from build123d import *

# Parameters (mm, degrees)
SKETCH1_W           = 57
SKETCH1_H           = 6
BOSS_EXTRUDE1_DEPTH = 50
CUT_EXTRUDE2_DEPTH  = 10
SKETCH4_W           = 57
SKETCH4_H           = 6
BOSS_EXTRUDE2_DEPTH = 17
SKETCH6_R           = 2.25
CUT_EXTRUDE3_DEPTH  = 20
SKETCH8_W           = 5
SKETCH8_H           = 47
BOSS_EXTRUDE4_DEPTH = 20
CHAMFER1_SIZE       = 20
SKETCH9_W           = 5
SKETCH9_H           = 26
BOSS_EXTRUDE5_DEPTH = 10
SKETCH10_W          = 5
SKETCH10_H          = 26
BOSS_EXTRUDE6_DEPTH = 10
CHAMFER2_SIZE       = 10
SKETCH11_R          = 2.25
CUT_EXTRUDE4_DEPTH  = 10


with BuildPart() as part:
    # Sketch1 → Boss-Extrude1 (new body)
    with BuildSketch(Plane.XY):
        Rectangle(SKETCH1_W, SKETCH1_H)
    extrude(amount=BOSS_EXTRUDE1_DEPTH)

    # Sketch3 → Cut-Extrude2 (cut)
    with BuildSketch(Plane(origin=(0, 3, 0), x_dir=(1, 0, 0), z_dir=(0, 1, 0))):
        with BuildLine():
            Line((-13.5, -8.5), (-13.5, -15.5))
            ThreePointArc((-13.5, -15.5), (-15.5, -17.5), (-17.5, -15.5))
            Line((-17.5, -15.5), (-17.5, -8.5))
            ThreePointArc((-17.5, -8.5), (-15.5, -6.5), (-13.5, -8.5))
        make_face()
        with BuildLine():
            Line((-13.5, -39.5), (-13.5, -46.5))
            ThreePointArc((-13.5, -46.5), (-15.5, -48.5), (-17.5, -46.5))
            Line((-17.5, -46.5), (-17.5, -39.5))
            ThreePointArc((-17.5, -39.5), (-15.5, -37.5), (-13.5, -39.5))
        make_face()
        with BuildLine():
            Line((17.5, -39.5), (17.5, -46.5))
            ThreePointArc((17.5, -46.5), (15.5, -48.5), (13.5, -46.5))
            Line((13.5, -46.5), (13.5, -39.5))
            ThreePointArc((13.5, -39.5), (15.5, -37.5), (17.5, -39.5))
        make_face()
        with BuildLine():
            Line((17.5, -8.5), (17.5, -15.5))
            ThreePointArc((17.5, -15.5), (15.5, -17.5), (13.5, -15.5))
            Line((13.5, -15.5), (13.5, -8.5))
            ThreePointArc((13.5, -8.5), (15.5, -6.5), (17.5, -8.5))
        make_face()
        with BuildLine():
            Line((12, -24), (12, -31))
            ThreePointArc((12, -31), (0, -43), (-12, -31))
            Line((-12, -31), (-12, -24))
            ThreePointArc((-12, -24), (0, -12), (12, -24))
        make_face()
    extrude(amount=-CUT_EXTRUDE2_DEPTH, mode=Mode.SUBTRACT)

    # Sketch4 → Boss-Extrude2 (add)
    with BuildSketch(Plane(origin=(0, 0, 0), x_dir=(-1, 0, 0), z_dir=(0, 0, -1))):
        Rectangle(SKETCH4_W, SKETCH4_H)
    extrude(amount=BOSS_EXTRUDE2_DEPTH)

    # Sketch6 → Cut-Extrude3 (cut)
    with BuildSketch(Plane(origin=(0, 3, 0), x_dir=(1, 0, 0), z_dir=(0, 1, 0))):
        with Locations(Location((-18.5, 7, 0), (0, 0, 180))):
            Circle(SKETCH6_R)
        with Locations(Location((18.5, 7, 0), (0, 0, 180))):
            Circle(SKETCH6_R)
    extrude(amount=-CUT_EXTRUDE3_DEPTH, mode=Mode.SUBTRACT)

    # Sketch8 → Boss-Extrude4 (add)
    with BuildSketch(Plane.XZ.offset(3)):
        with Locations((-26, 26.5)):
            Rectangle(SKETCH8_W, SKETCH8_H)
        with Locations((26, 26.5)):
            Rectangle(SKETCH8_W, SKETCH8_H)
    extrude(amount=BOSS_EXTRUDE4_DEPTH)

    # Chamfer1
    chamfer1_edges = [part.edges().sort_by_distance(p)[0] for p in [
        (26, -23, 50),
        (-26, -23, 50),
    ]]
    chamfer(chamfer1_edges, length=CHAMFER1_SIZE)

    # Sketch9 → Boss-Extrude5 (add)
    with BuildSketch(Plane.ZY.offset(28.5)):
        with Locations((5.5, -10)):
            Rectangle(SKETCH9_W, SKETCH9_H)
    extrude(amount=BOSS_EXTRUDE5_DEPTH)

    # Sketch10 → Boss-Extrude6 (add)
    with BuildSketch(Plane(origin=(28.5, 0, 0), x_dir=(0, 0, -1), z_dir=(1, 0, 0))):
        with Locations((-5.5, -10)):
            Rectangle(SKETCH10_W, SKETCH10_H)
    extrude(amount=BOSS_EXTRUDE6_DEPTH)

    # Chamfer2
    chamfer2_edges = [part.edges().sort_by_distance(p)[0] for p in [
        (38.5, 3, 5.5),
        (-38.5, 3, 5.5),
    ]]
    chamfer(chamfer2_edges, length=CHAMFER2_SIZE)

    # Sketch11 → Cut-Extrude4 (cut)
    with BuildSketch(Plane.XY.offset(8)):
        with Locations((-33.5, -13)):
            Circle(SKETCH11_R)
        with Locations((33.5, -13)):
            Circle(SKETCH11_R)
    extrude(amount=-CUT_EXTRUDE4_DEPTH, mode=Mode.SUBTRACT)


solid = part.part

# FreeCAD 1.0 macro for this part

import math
import FreeCAD as App
import Part
import Sketcher
from FreeCAD import Vector
Q = App.Units.Quantity


def edges_at(feature, points):
    """Names of the edges that pass closest to the given points."""
    edges = feature.Shape.Edges
    near = lambda p: min(range(len(edges)), key=lambda i: edges[i].distToShape(Part.Vertex(*p))[0])
    return sorted({f"Edge{near(p) + 1}" for p in points})

doc = App.newDocument("Part")
body = doc.addObject("PartDesign::Body", "Body")

# Sketch on XY plane
sketch1 = body.newObject("Sketcher::SketchObject", "Sketch")
sketch1.AttachmentSupport = (doc.getObject("XY_Plane"), [""])
sketch1.MapMode = "FlatFace"
sketch1.addGeometry([
    Part.LineSegment(Vector(-28.5, 3, 0), Vector(-28.5, -3, 0)),
    Part.LineSegment(Vector(-28.5, -3, 0), Vector(28.5, -3, 0)),
    Part.LineSegment(Vector(28.5, -3, 0), Vector(28.5, 3, 0)),
    Part.LineSegment(Vector(28.5, 3, 0), Vector(-28.5, 3, 0)),
], False)
sketch1.addConstraint([
    Sketcher.Constraint("Coincident", 0, 2, 1, 1),
    Sketcher.Constraint("Coincident", 1, 2, 2, 1),
    Sketcher.Constraint("Coincident", 2, 2, 3, 1),
    Sketcher.Constraint("Coincident", 3, 2, 0, 1),
    Sketcher.Constraint("Vertical", 0),
    Sketcher.Constraint("Horizontal", 1),
    Sketcher.Constraint("Vertical", 2),
    Sketcher.Constraint("Horizontal", 3),
    Sketcher.Constraint("Symmetric", 0, 2, 2, 2, -1, 1),
    Sketcher.Constraint("DistanceX", 1, 1, 1, 2, Q("57 mm")),
    Sketcher.Constraint("DistanceY", 0, 2, 0, 1, Q("6 mm")),
])
pad1 = body.newObject("PartDesign::Pad", "Pad")
pad1.Profile = sketch1
pad1.Length = 50

# Sketch on XZ plane
sketch2 = body.newObject("Sketcher::SketchObject", "Sketch001")
sketch2.AttachmentSupport = (doc.getObject("XZ_Plane"), [""])
sketch2.MapMode = "FlatFace"
sketch2.AttachmentOffset = App.Placement(Vector(0, 0, -3), App.Rotation())
sketch2.addGeometry([
    Part.LineSegment(Vector(-13.5, 15.5, 0), Vector(-13.5, 8.5, 0)),  # 0
    Part.ArcOfCircle(Part.Circle(Vector(-15.5, 8.5, 0), Vector(0, 0, 1), 2), math.radians(180), math.radians(360)),  # 1
    Part.LineSegment(Vector(-17.5, 8.5, 0), Vector(-17.5, 15.5, 0)),  # 2
    Part.ArcOfCircle(Part.Circle(Vector(-15.5, 15.5, 0), Vector(0, 0, 1), 2), math.radians(0), math.radians(180)),  # 3
    Part.LineSegment(Vector(-13.5, 46.5, 0), Vector(-13.5, 39.5, 0)),  # 4
    Part.ArcOfCircle(Part.Circle(Vector(-15.5, 39.5, 0), Vector(0, 0, 1), 2), math.radians(180), math.radians(360)),  # 5
    Part.LineSegment(Vector(-17.5, 39.5, 0), Vector(-17.5, 46.5, 0)),  # 6
    Part.ArcOfCircle(Part.Circle(Vector(-15.5, 46.5, 0), Vector(0, 0, 1), 2), math.radians(0), math.radians(180)),  # 7
    Part.LineSegment(Vector(17.5, 46.5, 0), Vector(17.5, 39.5, 0)),  # 8
    Part.ArcOfCircle(Part.Circle(Vector(15.5, 39.5, 0), Vector(0, 0, 1), 2), math.radians(180), math.radians(360)),  # 9
    Part.LineSegment(Vector(13.5, 39.5, 0), Vector(13.5, 46.5, 0)),  # 10
    Part.ArcOfCircle(Part.Circle(Vector(15.5, 46.5, 0), Vector(0, 0, 1), 2), math.radians(0), math.radians(180)),  # 11
    Part.LineSegment(Vector(17.5, 15.5, 0), Vector(17.5, 8.5, 0)),  # 12
    Part.ArcOfCircle(Part.Circle(Vector(15.5, 8.5, 0), Vector(0, 0, 1), 2), math.radians(180), math.radians(360)),  # 13
    Part.LineSegment(Vector(13.5, 8.5, 0), Vector(13.5, 15.5, 0)),  # 14
    Part.ArcOfCircle(Part.Circle(Vector(15.5, 15.5, 0), Vector(0, 0, 1), 2), math.radians(0), math.radians(180)),  # 15
    Part.LineSegment(Vector(12, 31, 0), Vector(12, 24, 0)),  # 16
    Part.ArcOfCircle(Part.Circle(Vector(0, 24, 0), Vector(0, 0, 1), 12), math.radians(180), math.radians(360)),  # 17
    Part.LineSegment(Vector(-12, 24, 0), Vector(-12, 31, 0)),  # 18
    Part.ArcOfCircle(Part.Circle(Vector(0, 31, 0), Vector(0, 0, 1), 12), math.radians(0), math.radians(180)),  # 19
], False)
sketch2.addConstraint([
    Sketcher.Constraint("Tangent", 0, 2, 1, 2),
    Sketcher.Constraint("Tangent", 1, 1, 2, 1),
    Sketcher.Constraint("Tangent", 2, 2, 3, 2),
    Sketcher.Constraint("Tangent", 3, 1, 0, 1),
    Sketcher.Constraint("Tangent", 4, 2, 5, 2),
    Sketcher.Constraint("Tangent", 5, 1, 6, 1),
    Sketcher.Constraint("Tangent", 6, 2, 7, 2),
    Sketcher.Constraint("Tangent", 7, 1, 4, 1),
    Sketcher.Constraint("Tangent", 8, 2, 9, 2),
    Sketcher.Constraint("Tangent", 9, 1, 10, 1),
    Sketcher.Constraint("Tangent", 10, 2, 11, 2),
    Sketcher.Constraint("Tangent", 11, 1, 8, 1),
    Sketcher.Constraint("Tangent", 12, 2, 13, 2),
    Sketcher.Constraint("Tangent", 13, 1, 14, 1),
    Sketcher.Constraint("Tangent", 14, 2, 15, 2),
    Sketcher.Constraint("Tangent", 15, 1, 12, 1),
    Sketcher.Constraint("Tangent", 16, 2, 17, 2),
    Sketcher.Constraint("Tangent", 17, 1, 18, 1),
    Sketcher.Constraint("Tangent", 18, 2, 19, 2),
    Sketcher.Constraint("Tangent", 19, 1, 16, 1),
    Sketcher.Constraint("Vertical", 0),
    Sketcher.Constraint("Vertical", 2),
    Sketcher.Constraint("Vertical", 4),
    Sketcher.Constraint("Vertical", 6),
    Sketcher.Constraint("Vertical", 8),
    Sketcher.Constraint("Vertical", 10),
    Sketcher.Constraint("Vertical", 12),
    Sketcher.Constraint("Vertical", 14),
    Sketcher.Constraint("Vertical", 16),
    Sketcher.Constraint("Vertical", 18),
    Sketcher.Constraint("Equal", 3, 5),
    Sketcher.Constraint("Equal", 7, 9),
    Sketcher.Constraint("Equal", 11, 13),
    Sketcher.Constraint("Symmetric", 5, 3, 9, 3, -2),
    Sketcher.Constraint("Symmetric", 1, 3, 13, 3, -2),
    Sketcher.Constraint("PointOnObject", 17, 3, -2),
    Sketcher.Constraint("Horizontal", 7, 3, 11, 3),
    Sketcher.Constraint("Horizontal", 3, 3, 15, 3),
    Sketcher.Constraint("Vertical", 3, 3, 5, 3),
    Sketcher.Constraint("Equal", 2, 4),
    Sketcher.Constraint("Equal", 14, 16),
    Sketcher.Constraint("Radius", 1, Q("2 mm")),
    Sketcher.Constraint("Radius", 17, Q("12 mm")),
    Sketcher.Constraint("DistanceY", 0, 2, 0, 1, Q("7 mm")),
    Sketcher.Constraint("DistanceY", -1, 1, 17, 3, Q("24 mm")),
    Sketcher.Constraint("DistanceY", 3, 3, 5, 3, Q("24 mm")),
    Sketcher.Constraint("DistanceX", 5, 3, 9, 3, Q("31 mm")),
    Sketcher.Constraint("DistanceY", -1, 1, 1, 3, Q("8.5 mm")),
])
pocket1 = body.newObject("PartDesign::Pocket", "Pocket")
pocket1.Profile = sketch2
pocket1.Length = 10
pocket1.Reversed = True

# Sketch on XY plane
sketch3 = body.newObject("Sketcher::SketchObject", "Sketch002")
sketch3.AttachmentSupport = (doc.getObject("XY_Plane"), [""])
sketch3.MapMode = "FlatFace"
sketch3.addGeometry([
    Part.LineSegment(Vector(28.5, 3, 0), Vector(28.5, -3, 0)),
    Part.LineSegment(Vector(28.5, -3, 0), Vector(-28.5, -3, 0)),
    Part.LineSegment(Vector(-28.5, -3, 0), Vector(-28.5, 3, 0)),
    Part.LineSegment(Vector(-28.5, 3, 0), Vector(28.5, 3, 0)),
], False)
sketch3.addConstraint([
    Sketcher.Constraint("Coincident", 0, 2, 1, 1),
    Sketcher.Constraint("Coincident", 1, 2, 2, 1),
    Sketcher.Constraint("Coincident", 2, 2, 3, 1),
    Sketcher.Constraint("Coincident", 3, 2, 0, 1),
    Sketcher.Constraint("Vertical", 0),
    Sketcher.Constraint("Horizontal", 1),
    Sketcher.Constraint("Vertical", 2),
    Sketcher.Constraint("Horizontal", 3),
    Sketcher.Constraint("Symmetric", 0, 2, 2, 2, -1, 1),
    Sketcher.Constraint("DistanceX", 1, 2, 1, 1, Q("57 mm")),
    Sketcher.Constraint("DistanceY", 0, 2, 0, 1, Q("6 mm")),
])
pad2 = body.newObject("PartDesign::Pad", "Pad001")
pad2.Profile = sketch3
pad2.Length = 17
pad2.Reversed = True

# Sketch on XZ plane
sketch4 = body.newObject("Sketcher::SketchObject", "Sketch003")
sketch4.AttachmentSupport = (doc.getObject("XZ_Plane"), [""])
sketch4.MapMode = "FlatFace"
sketch4.AttachmentOffset = App.Placement(Vector(0, 0, -3), App.Rotation())
sketch4.addGeometry([
    Part.Circle(Vector(-18.5, -7, 0), Vector(0, 0, 1), 2.25),
    Part.Circle(Vector(18.5, -7, 0), Vector(0, 0, 1), 2.25),
], False)
sketch4.addConstraint([
    Sketcher.Constraint("Equal", 0, 1),
    Sketcher.Constraint("Symmetric", 0, 3, 1, 3, -2),
    Sketcher.Constraint("Diameter", 0, Q("4.5 mm")),
    Sketcher.Constraint("DistanceY", 0, 3, -1, 1, Q("7 mm")),
    Sketcher.Constraint("DistanceX", 0, 3, 1, 3, Q("37 mm")),
])
pocket2 = body.newObject("PartDesign::Pocket", "Pocket001")
pocket2.Profile = sketch4
pocket2.Length = 20
pocket2.Reversed = True

# Sketch on XZ plane
sketch5 = body.newObject("Sketcher::SketchObject", "Sketch004")
sketch5.AttachmentSupport = (doc.getObject("XZ_Plane"), [""])
sketch5.MapMode = "FlatFace"
sketch5.AttachmentOffset = App.Placement(Vector(0, 0, 3), App.Rotation())
sketch5.addGeometry([
    Part.LineSegment(Vector(-28.5, 50, 0), Vector(-28.5, 3, 0)),  # 0
    Part.LineSegment(Vector(-28.5, 3, 0), Vector(-23.5, 3, 0)),  # 1
    Part.LineSegment(Vector(-23.5, 3, 0), Vector(-23.5, 50, 0)),  # 2
    Part.LineSegment(Vector(-23.5, 50, 0), Vector(-28.5, 50, 0)),  # 3
    Part.LineSegment(Vector(23.5, 50, 0), Vector(23.5, 3, 0)),  # 4
    Part.LineSegment(Vector(23.5, 3, 0), Vector(28.5, 3, 0)),  # 5
    Part.LineSegment(Vector(28.5, 3, 0), Vector(28.5, 50, 0)),  # 6
    Part.LineSegment(Vector(28.5, 50, 0), Vector(23.5, 50, 0)),  # 7
], False)
sketch5.addConstraint([
    Sketcher.Constraint("Coincident", 0, 2, 1, 1),
    Sketcher.Constraint("Coincident", 1, 2, 2, 1),
    Sketcher.Constraint("Coincident", 2, 2, 3, 1),
    Sketcher.Constraint("Coincident", 3, 2, 0, 1),
    Sketcher.Constraint("Coincident", 4, 2, 5, 1),
    Sketcher.Constraint("Coincident", 5, 2, 6, 1),
    Sketcher.Constraint("Coincident", 6, 2, 7, 1),
    Sketcher.Constraint("Coincident", 7, 2, 4, 1),
    Sketcher.Constraint("Vertical", 0),
    Sketcher.Constraint("Horizontal", 1),
    Sketcher.Constraint("Vertical", 2),
    Sketcher.Constraint("Horizontal", 3),
    Sketcher.Constraint("Vertical", 4),
    Sketcher.Constraint("Horizontal", 5),
    Sketcher.Constraint("Vertical", 6),
    Sketcher.Constraint("Horizontal", 7),
    Sketcher.Constraint("Symmetric", 1, 2, 4, 2, -2),
    Sketcher.Constraint("Symmetric", 3, 2, 6, 2, -2),
    Sketcher.Constraint("DistanceX", 1, 1, 1, 2, Q("5 mm")),
    Sketcher.Constraint("DistanceY", 0, 2, 0, 1, Q("47 mm")),
    Sketcher.Constraint("DistanceY", -1, 1, 0, 2, Q("3 mm")),
    Sketcher.Constraint("DistanceX", 1, 2, 4, 2, Q("47 mm")),
])
pad3 = body.newObject("PartDesign::Pad", "Pad002")
pad3.Profile = sketch5
pad3.Length = 20
doc.recompute()

chamfer = body.newObject("PartDesign::Chamfer", "Chamfer")
chamfer.Base = (pad3, edges_at(pad3, [(26, -23, 50), (-26, -23, 50)]))
chamfer.Size = 20

# Sketch on YZ plane
sketch6 = body.newObject("Sketcher::SketchObject", "Sketch005")
sketch6.AttachmentSupport = (doc.getObject("YZ_Plane"), [""])
sketch6.MapMode = "FlatFace"
sketch6.AttachmentOffset = App.Placement(Vector(0, 0, -28.5), App.Rotation())
sketch6.addGeometry([
    Part.LineSegment(Vector(3, 3, 0), Vector(-23, 3, 0)),
    Part.LineSegment(Vector(-23, 3, 0), Vector(-23, 8, 0)),
    Part.LineSegment(Vector(-23, 8, 0), Vector(3, 8, 0)),
    Part.LineSegment(Vector(3, 8, 0), Vector(3, 3, 0)),
], False)
sketch6.addConstraint([
    Sketcher.Constraint("Coincident", 0, 2, 1, 1),
    Sketcher.Constraint("Coincident", 1, 2, 2, 1),
    Sketcher.Constraint("Coincident", 2, 2, 3, 1),
    Sketcher.Constraint("Coincident", 3, 2, 0, 1),
    Sketcher.Constraint("Horizontal", 0),
    Sketcher.Constraint("Vertical", 1),
    Sketcher.Constraint("Horizontal", 2),
    Sketcher.Constraint("Vertical", 3),
    Sketcher.Constraint("DistanceX", 0, 2, 0, 1, Q("26 mm")),
    Sketcher.Constraint("DistanceY", 1, 1, 1, 2, Q("5 mm")),
    Sketcher.Constraint("DistanceX", 0, 2, -1, 1, Q("23 mm")),
    Sketcher.Constraint("DistanceY", -1, 1, 0, 2, Q("3 mm")),
])
pad4 = body.newObject("PartDesign::Pad", "Pad003")
pad4.Profile = sketch6
pad4.Length = 10
pad4.Reversed = True

# Sketch on YZ plane
sketch7 = body.newObject("Sketcher::SketchObject", "Sketch006")
sketch7.AttachmentSupport = (doc.getObject("YZ_Plane"), [""])
sketch7.MapMode = "FlatFace"
sketch7.AttachmentOffset = App.Placement(Vector(0, 0, 28.5), App.Rotation())
sketch7.addGeometry([
    Part.LineSegment(Vector(3, 8, 0), Vector(-23, 8, 0)),
    Part.LineSegment(Vector(-23, 8, 0), Vector(-23, 3, 0)),
    Part.LineSegment(Vector(-23, 3, 0), Vector(3, 3, 0)),
    Part.LineSegment(Vector(3, 3, 0), Vector(3, 8, 0)),
], False)
sketch7.addConstraint([
    Sketcher.Constraint("Coincident", 0, 2, 1, 1),
    Sketcher.Constraint("Coincident", 1, 2, 2, 1),
    Sketcher.Constraint("Coincident", 2, 2, 3, 1),
    Sketcher.Constraint("Coincident", 3, 2, 0, 1),
    Sketcher.Constraint("Horizontal", 0),
    Sketcher.Constraint("Vertical", 1),
    Sketcher.Constraint("Horizontal", 2),
    Sketcher.Constraint("Vertical", 3),
    Sketcher.Constraint("DistanceX", 0, 2, 0, 1, Q("26 mm")),
    Sketcher.Constraint("DistanceY", 1, 2, 1, 1, Q("5 mm")),
    Sketcher.Constraint("DistanceX", 0, 2, -1, 1, Q("23 mm")),
    Sketcher.Constraint("DistanceY", -1, 1, 0, 2, Q("8 mm")),
])
pad5 = body.newObject("PartDesign::Pad", "Pad004")
pad5.Profile = sketch7
pad5.Length = 10
doc.recompute()

chamfer2 = body.newObject("PartDesign::Chamfer", "Chamfer001")
chamfer2.Base = (pad5, edges_at(pad5, [(38.5, 3, 5.5), (-38.5, 3, 5.5)]))
chamfer2.Size = 10

# Sketch on XY plane
sketch8 = body.newObject("Sketcher::SketchObject", "Sketch007")
sketch8.AttachmentSupport = (doc.getObject("XY_Plane"), [""])
sketch8.MapMode = "FlatFace"
sketch8.AttachmentOffset = App.Placement(Vector(0, 0, 8), App.Rotation())
sketch8.addGeometry([
    Part.Circle(Vector(-33.5, -13, 0), Vector(0, 0, 1), 2.25),
    Part.Circle(Vector(33.5, -13, 0), Vector(0, 0, 1), 2.25),
], False)
sketch8.addConstraint([
    Sketcher.Constraint("Equal", 0, 1),
    Sketcher.Constraint("Symmetric", 0, 3, 1, 3, -2),
    Sketcher.Constraint("Diameter", 0, Q("4.5 mm")),
    Sketcher.Constraint("DistanceY", 0, 3, -1, 1, Q("13 mm")),
    Sketcher.Constraint("DistanceX", 0, 3, 1, 3, Q("67 mm")),
])
pocket3 = body.newObject("PartDesign::Pocket", "Pocket002")
pocket3.Profile = sketch8
pocket3.Length = 10

doc.recompute()
